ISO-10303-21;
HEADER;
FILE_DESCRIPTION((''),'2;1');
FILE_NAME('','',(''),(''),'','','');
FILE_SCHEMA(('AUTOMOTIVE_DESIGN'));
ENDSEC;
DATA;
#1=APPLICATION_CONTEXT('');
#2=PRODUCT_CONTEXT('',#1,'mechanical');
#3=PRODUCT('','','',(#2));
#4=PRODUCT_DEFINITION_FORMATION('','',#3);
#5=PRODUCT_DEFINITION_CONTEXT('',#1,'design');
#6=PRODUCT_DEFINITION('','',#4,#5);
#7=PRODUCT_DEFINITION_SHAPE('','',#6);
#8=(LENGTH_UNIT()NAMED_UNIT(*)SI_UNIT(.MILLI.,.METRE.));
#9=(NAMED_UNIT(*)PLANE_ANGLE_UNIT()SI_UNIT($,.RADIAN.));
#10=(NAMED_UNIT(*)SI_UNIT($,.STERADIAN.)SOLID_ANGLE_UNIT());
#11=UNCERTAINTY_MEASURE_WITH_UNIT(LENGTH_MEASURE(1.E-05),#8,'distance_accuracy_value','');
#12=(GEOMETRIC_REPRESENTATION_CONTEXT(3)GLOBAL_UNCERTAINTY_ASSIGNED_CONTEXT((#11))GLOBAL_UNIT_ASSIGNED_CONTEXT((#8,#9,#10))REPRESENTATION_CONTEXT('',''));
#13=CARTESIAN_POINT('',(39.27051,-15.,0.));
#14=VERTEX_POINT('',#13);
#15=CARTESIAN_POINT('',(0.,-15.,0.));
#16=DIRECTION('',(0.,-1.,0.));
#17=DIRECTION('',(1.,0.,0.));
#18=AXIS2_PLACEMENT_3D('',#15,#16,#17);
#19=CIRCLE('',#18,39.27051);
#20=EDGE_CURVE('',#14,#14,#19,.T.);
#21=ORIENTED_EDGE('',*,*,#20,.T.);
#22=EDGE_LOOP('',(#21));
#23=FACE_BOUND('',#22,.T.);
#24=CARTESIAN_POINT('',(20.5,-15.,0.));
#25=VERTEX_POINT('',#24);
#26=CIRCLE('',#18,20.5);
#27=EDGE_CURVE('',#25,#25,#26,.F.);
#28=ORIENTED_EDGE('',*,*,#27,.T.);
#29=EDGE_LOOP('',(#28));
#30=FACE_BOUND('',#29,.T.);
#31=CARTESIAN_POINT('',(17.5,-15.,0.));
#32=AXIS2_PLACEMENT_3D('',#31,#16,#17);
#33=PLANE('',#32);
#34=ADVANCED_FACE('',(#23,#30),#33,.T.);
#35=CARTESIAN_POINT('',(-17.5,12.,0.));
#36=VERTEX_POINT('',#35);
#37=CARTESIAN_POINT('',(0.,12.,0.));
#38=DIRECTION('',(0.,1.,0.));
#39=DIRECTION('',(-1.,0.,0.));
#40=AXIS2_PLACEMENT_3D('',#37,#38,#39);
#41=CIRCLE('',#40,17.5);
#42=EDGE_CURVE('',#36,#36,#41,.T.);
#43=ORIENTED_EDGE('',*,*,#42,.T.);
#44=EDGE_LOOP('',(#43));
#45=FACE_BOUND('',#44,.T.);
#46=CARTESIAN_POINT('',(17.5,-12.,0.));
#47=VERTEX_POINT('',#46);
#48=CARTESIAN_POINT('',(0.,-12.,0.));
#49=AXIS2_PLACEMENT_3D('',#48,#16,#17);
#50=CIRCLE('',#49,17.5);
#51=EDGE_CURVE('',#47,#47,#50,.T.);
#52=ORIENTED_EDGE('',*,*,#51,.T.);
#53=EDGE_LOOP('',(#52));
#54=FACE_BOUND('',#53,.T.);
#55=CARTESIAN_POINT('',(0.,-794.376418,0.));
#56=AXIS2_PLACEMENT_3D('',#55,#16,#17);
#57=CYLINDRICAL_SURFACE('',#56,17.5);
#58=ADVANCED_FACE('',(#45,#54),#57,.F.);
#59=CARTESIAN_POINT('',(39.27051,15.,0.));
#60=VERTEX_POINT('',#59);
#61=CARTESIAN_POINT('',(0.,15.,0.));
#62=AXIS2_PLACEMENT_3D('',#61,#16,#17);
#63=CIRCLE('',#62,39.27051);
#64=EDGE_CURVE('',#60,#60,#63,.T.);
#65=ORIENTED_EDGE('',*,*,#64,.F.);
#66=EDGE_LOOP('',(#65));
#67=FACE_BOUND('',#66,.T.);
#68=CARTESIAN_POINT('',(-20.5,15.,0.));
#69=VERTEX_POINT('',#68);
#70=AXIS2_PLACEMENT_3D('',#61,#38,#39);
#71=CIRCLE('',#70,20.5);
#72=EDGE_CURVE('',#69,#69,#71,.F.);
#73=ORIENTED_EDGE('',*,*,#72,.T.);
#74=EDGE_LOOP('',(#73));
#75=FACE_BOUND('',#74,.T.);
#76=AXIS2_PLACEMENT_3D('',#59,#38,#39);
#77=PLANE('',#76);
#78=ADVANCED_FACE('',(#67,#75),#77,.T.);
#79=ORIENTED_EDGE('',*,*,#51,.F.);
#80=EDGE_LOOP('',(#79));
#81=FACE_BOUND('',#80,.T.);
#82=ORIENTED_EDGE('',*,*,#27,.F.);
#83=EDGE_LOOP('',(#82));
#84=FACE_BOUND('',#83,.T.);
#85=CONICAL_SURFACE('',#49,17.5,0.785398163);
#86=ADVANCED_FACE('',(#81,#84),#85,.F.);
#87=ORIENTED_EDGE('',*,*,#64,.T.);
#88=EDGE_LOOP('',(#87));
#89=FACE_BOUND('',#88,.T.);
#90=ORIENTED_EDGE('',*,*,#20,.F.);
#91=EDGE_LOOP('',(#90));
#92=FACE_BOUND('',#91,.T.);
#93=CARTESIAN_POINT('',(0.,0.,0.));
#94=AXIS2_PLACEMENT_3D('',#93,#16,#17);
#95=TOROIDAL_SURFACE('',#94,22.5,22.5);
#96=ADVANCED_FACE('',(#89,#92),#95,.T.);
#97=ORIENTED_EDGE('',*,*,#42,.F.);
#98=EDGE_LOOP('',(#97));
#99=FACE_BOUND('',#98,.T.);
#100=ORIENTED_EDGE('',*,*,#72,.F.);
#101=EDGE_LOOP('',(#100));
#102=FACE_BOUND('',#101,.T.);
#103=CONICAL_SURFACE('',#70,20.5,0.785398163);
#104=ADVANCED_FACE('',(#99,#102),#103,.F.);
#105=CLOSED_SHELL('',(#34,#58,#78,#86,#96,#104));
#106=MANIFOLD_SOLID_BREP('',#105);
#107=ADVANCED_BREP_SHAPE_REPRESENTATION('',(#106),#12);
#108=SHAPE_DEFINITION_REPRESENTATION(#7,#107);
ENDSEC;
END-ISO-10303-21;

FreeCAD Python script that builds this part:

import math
import FreeCAD as App
import Part
import Sketcher
from FreeCAD import Vector


def edges_at(feature, points):
    """Names of the edges that pass closest to the given points."""
    edges = feature.Shape.Edges
    near = lambda p: min(range(len(edges)), key=lambda i: edges[i].distToShape(Part.Vertex(*p))[0])
    return sorted({f"Edge{near(p) + 1}" for p in points})

doc = App.newDocument("Part")
body = doc.addObject("PartDesign::Body", "Body")

sketch1 = body.newObject("Sketcher::SketchObject", "Sketch")
sketch1.AttachmentSupport = (doc.getObject("XY_Plane"), [""])
sketch1.MapMode = "FlatFace"
sketch1.addGeometry([
    Part.LineSegment(Vector(39, 15, 0), Vector(18, 15, 0)),
    Part.LineSegment(Vector(18, 15, 0), Vector(18, -15, 0)),
    Part.LineSegment(Vector(18, -15, 0), Vector(39, -15, 0)),
    Part.ArcOfCircle(Part.Circle(Vector(23, 0, 0), Vector(0, 0, 1), 22), math.radians(-42), math.radians(42)),
], False)
sketch1.addConstraint([
    Sketcher.Constraint("Coincident", 0, 2, 1, 1),
    Sketcher.Constraint("Coincident", 1, 2, 2, 1),
    Sketcher.Constraint("Coincident", 2, 2, 3, 1),
    Sketcher.Constraint("Coincident", 3, 2, 0, 1),
    Sketcher.Constraint("Horizontal", 0),
    Sketcher.Constraint("Vertical", 1),
    Sketcher.Constraint("Horizontal", 2),
    Sketcher.Constraint("Symmetric", 2, 2, 3, 2, -1),
    Sketcher.Constraint("Radius", 3, 22.5),
    Sketcher.Constraint("DistanceY", 1, 2, 1, 1, 30.0),
    Sketcher.Constraint("DistanceX", 0, 2, 3, 3, 5.0),
    Sketcher.Constraint("DistanceX", -1, 1, 3, 3, 22.5),
])
revolution = body.newObject("PartDesign::Revolution", "Revolution")
revolution.Profile = sketch1
revolution.ReferenceAxis = (sketch1, ["V_Axis"])
revolution.Angle = 360
doc.recompute()

chamfer = body.newObject("PartDesign::Chamfer", "Chamfer")
chamfer.Base = (revolution, edges_at(revolution, [(-17.5, 15, 0), (-17.5, -15, 0)]))
chamfer.Size = 3

doc.recompute()
